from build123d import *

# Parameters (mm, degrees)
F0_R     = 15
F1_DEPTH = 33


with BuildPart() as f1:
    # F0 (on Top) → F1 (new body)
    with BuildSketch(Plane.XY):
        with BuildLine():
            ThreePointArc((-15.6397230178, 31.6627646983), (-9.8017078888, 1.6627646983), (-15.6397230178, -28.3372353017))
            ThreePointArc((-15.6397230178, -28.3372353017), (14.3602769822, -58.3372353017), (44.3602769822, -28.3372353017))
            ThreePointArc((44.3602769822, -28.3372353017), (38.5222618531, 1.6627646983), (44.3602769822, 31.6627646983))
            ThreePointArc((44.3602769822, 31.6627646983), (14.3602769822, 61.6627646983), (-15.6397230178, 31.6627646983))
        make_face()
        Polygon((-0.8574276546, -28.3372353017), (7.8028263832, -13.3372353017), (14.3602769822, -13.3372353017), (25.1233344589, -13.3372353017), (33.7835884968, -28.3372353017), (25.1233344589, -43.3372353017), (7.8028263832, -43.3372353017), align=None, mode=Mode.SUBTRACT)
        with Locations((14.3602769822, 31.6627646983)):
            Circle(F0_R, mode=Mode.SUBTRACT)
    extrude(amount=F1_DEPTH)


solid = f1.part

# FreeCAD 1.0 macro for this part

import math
import FreeCAD as App
import Part
import Sketcher
Q = App.Units.Quantity


def add_polygon(sketch, points):
    """Adds a closed chain of lines whose ends are joined by coincident constraints."""
    first, n = sketch.GeometryCount, len(points)
    for a, b in zip(points, points[1:] + points[:1]):
        sketch.addGeometry(Part.LineSegment(App.Vector(*a, 0), App.Vector(*b, 0)), False)
    for i in range(n):
        sketch.addConstraint(Sketcher.Constraint("Coincident", first + i, 2, first + (i + 1) % n, 1))

doc = App.newDocument("Part")
body = doc.addObject("PartDesign::Body", "Body")

# Sketch on XY plane
sketch1 = doc.addObject("Sketcher::SketchObject", "Sketch")
body.addObject(sketch1)
sketch1.AttachmentSupport = (doc.XY_Plane, [""])
sketch1.MapMode = "FlatFace"
sketch1.addGeometry(Part.ArcOfCircle(Part.Circle(App.Vector(-90, 2, 0), App.Vector(0, 0, 1), 80), math.radians(-22), math.radians(22)), False)  # 0
sketch1.addGeometry(Part.ArcOfCircle(Part.Circle(App.Vector(14, -28, 0), App.Vector(0, 0, 1), 30), math.radians(180), math.radians(360)), False)  # 1
sketch1.addGeometry(Part.ArcOfCircle(Part.Circle(App.Vector(119, 2, 0), App.Vector(0, 0, 1), 80), math.radians(158), math.radians(202)), False)  # 2
sketch1.addGeometry(Part.ArcOfCircle(Part.Circle(App.Vector(14, 32, 0), App.Vector(0, 0, 1), 30), math.radians(0), math.radians(180)), False)  # 3
add_polygon(sketch1, [(8, -43), (-1, -28), (8, -13), (25, -13), (34, -28), (25, -43)])  # lines 4-9
sketch1.addGeometry(Part.Circle(App.Vector(14, 32, 0), App.Vector(0, 0, 1), 15), False)  # 10
sketch1.addConstraint([
    Sketcher.Constraint("Coincident", 0, 1, 1, 1),
    Sketcher.Constraint("Coincident", 1, 2, 2, 2),
    Sketcher.Constraint("Coincident", 2, 1, 3, 1),
    Sketcher.Constraint("Coincident", 3, 2, 0, 2),
    Sketcher.Constraint("Horizontal", 6),
    Sketcher.Constraint("Horizontal", 9),
    Sketcher.Constraint("Coincident", 10, 3, 3, 3),
    Sketcher.Constraint("Equal", 0, 2),
    Sketcher.Constraint("Equal", 1, 3),
    Sketcher.Constraint("Parallel", 4, 7),
    Sketcher.Constraint("Parallel", 5, 8),
    Sketcher.Constraint("Horizontal", 0, 3, 2, 3),
    Sketcher.Constraint("Horizontal", 1, 3, 0, 1),
    Sketcher.Constraint("Horizontal", 0, 1, 1, 2),
    Sketcher.Constraint("Horizontal", 10, 3, 2, 1),
    Sketcher.Constraint("Horizontal", 2, 1, 3, 2),
    Sketcher.Constraint("Horizontal", 1, 2, 4, 2),
    Sketcher.Constraint("Horizontal", 4, 2, 7, 2),
    Sketcher.Constraint("Vertical", 6, 2, 8, 2),
    Sketcher.Constraint("Vertical", 5, 2, 9, 2),
    Sketcher.Constraint("Diameter", 10, 30.0),
    Sketcher.Constraint("Radius", 0, 80.0),
    Sketcher.Constraint("Radius", 1, 30.0),
    Sketcher.Constraint("Angle", 4, Q("120 deg")),
    Sketcher.Constraint("DistanceY", 1, 3, 0, 3, 30.0),
    Sketcher.Constraint("DistanceY", 1, 3, 5, 2, 15.0),
    Sketcher.Constraint("DistanceX", 6, 1, 6, 2, 17.320508),
    Sketcher.Constraint("DistanceX", -1, 1, 2, 3, 118.522262),
    Sketcher.Constraint("DistanceX", -1, 1, 7, 2, 33.783588),
    Sketcher.Constraint("DistanceY", -1, 1, 0, 3, 1.662765),
])
pad1 = doc.addObject("PartDesign::Pad", "Pad")
body.addObject(pad1)
pad1.Profile = sketch1
pad1.Length = 33

doc.recompute()
